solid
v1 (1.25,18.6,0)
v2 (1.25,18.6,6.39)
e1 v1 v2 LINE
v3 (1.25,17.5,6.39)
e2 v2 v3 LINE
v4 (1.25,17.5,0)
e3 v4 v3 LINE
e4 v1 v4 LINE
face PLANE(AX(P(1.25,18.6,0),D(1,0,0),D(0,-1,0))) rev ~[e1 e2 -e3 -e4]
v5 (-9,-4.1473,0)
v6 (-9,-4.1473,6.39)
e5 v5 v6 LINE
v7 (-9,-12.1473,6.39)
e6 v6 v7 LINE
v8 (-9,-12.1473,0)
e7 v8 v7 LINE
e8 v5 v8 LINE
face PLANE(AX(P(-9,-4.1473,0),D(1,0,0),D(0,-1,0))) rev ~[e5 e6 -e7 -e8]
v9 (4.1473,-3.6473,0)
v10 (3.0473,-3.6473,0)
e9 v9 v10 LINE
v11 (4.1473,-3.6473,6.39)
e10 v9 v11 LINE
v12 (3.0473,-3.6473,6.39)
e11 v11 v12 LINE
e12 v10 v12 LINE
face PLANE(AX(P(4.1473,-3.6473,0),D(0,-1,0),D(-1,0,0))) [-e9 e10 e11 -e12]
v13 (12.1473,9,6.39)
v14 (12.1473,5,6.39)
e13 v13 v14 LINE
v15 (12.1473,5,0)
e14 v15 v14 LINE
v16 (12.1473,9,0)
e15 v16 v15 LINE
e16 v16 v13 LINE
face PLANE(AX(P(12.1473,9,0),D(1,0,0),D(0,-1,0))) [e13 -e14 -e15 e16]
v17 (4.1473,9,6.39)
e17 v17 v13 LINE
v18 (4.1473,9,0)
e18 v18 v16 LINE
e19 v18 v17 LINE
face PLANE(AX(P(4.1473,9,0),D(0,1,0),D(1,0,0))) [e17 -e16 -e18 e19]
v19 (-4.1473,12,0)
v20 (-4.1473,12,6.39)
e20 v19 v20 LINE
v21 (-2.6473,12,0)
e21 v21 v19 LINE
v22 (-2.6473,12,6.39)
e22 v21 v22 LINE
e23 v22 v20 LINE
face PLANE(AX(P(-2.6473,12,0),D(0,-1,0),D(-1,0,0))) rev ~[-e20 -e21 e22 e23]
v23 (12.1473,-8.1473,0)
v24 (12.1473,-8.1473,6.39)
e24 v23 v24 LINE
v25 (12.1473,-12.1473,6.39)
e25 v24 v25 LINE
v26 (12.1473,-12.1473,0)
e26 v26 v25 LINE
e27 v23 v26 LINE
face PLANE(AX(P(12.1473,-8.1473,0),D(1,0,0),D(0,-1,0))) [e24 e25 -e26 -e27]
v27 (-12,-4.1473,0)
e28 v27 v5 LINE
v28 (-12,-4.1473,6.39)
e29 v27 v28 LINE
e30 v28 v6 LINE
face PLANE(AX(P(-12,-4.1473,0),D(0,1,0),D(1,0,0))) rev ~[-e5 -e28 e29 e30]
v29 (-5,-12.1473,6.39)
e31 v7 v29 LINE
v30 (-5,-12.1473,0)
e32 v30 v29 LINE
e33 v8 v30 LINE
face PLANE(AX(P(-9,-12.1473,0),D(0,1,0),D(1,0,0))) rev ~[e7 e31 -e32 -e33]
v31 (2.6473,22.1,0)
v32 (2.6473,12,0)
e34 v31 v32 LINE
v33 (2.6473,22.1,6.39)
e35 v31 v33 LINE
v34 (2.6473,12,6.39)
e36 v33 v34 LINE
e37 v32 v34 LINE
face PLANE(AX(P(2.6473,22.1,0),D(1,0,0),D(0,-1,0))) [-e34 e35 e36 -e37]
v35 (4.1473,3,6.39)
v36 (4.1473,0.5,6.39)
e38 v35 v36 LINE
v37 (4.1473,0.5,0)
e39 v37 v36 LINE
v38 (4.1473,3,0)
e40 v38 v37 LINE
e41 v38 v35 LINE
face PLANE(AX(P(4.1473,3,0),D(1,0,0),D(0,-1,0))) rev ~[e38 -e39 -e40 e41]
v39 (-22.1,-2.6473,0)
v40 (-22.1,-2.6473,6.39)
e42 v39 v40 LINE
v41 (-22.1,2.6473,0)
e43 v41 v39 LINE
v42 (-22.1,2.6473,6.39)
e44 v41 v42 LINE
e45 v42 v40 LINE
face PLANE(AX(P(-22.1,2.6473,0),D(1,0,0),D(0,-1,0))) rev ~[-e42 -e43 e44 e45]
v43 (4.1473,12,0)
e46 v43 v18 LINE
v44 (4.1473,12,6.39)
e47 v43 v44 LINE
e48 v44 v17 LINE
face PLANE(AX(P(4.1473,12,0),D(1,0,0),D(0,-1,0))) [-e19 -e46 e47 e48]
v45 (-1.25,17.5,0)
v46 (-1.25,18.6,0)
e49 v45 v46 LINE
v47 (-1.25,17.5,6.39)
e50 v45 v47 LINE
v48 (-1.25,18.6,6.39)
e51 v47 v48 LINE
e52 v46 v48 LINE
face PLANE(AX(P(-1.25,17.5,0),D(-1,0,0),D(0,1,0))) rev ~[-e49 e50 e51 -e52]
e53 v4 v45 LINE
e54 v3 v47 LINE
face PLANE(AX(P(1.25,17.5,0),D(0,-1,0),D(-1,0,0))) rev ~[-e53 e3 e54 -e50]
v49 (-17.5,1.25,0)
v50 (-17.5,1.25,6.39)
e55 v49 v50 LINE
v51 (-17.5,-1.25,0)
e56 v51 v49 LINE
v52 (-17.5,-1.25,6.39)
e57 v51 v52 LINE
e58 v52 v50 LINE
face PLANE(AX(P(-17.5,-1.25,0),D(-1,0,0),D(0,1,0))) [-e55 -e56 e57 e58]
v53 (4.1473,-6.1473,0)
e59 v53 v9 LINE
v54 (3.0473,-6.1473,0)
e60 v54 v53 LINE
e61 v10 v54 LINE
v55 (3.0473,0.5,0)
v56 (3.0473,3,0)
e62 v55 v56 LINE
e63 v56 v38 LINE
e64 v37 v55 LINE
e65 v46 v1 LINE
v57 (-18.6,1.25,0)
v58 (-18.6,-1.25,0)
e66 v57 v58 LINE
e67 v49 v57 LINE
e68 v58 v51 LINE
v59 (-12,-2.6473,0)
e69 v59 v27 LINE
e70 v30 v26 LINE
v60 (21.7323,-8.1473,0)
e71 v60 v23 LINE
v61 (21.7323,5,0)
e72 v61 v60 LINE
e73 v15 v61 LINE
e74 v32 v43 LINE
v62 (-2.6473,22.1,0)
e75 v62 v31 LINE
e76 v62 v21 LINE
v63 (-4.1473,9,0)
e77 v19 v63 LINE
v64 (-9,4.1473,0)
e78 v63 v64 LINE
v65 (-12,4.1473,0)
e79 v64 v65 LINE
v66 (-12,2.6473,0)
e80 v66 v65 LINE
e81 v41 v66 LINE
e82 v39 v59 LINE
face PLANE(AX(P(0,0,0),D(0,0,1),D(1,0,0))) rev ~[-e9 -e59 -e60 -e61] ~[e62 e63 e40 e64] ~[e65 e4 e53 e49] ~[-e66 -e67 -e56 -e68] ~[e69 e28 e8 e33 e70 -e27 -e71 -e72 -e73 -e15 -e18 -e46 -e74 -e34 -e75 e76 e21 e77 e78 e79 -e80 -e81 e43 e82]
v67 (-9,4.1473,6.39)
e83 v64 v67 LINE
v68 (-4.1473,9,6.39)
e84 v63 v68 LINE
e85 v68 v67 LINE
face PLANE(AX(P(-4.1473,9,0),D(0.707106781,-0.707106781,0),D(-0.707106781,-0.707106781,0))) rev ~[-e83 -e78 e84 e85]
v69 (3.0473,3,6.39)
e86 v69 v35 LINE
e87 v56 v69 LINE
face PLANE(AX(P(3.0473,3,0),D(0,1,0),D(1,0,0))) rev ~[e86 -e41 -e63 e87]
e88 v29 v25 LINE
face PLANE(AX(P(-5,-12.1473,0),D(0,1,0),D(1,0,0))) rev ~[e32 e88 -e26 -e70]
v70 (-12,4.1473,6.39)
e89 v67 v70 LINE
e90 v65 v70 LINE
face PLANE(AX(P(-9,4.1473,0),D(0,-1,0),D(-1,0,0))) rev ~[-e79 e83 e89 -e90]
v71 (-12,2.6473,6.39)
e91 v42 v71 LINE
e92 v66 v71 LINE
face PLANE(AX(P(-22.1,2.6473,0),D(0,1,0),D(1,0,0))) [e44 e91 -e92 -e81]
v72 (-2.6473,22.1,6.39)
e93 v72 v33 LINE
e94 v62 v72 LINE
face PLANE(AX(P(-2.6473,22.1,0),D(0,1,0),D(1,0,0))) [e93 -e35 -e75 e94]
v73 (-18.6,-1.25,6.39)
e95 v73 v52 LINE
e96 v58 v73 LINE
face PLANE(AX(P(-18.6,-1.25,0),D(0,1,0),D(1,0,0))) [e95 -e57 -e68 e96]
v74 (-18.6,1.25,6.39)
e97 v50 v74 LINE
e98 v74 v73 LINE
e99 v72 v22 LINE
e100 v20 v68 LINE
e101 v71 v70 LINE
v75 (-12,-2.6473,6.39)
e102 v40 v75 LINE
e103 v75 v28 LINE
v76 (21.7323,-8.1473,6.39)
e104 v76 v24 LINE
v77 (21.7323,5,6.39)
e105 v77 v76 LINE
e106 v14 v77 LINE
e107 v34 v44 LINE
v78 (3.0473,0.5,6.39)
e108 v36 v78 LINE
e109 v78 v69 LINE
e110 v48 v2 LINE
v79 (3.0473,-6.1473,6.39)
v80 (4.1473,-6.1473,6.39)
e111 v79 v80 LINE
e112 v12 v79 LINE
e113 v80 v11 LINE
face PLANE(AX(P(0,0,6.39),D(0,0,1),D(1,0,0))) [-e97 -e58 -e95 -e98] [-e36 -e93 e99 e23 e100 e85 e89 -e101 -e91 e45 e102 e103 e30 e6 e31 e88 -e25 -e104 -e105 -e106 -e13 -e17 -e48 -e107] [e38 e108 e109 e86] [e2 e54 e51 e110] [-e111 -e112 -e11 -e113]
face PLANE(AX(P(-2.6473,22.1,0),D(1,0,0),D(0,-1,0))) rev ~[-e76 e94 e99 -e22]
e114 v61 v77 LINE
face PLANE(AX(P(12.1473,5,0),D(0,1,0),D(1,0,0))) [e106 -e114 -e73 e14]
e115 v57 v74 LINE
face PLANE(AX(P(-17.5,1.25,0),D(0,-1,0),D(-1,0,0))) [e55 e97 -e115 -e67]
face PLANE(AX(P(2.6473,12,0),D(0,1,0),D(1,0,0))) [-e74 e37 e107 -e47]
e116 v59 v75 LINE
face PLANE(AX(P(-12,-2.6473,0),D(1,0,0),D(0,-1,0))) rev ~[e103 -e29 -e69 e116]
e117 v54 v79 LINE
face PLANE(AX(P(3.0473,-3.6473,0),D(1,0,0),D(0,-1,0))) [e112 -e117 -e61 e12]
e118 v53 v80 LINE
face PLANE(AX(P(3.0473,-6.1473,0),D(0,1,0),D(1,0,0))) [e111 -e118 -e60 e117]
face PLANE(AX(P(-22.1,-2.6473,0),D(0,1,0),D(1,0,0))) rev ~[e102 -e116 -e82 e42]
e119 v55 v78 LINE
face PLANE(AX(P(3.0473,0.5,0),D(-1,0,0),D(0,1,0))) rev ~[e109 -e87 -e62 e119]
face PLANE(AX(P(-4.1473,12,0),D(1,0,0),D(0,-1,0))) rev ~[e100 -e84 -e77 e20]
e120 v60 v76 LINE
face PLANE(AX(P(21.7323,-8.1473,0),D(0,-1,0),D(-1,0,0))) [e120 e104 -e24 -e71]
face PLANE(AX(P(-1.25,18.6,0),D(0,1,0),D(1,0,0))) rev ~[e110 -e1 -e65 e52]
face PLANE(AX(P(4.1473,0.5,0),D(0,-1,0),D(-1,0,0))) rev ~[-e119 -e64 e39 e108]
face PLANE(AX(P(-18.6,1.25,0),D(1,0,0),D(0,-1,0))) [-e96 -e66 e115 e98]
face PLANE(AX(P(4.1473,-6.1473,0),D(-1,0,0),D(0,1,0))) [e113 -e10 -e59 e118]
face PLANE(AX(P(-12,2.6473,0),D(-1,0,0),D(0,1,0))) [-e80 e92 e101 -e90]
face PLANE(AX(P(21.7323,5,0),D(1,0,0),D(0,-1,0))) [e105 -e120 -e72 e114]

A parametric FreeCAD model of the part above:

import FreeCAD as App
import Part
import Sketcher
Q = App.Units.Quantity


def add_polygon(sketch, points):
    """Adds a closed chain of lines whose ends are joined by coincident constraints."""
    first, n = sketch.GeometryCount, len(points)
    for a, b in zip(points, points[1:] + points[:1]):
        sketch.addGeometry(Part.LineSegment(App.Vector(*a, 0), App.Vector(*b, 0)), False)
    for i in range(n):
        sketch.addConstraint(Sketcher.Constraint("Coincident", first + i, 2, first + (i + 1) % n, 1))

doc = App.newDocument("Part")
params = doc.addObject("Spreadsheet::Sheet", "Params")
for row, (alias, value) in enumerate([
    ("sketch1_width", "3 mm"),
    ("sketch1_width2", "8 mm"),
    ("sketch1_width3", "1.5 mm"),
    ("sketch1_width4", "10.1 mm"),
    ("sketch1_width5", "1.1 mm"),
    ("pad1_length", "6.39 mm"),
], start=1):
    params.set(f"A{row}", alias)
    params.set(f"B{row}", "=" + value)
    params.setAlias(f"B{row}", alias)

body = doc.addObject("PartDesign::Body", "Body")

# Sketch on XY plane
sketch1 = body.newObject("Sketcher::SketchObject", "Sketch")
sketch1.AttachmentSupport = (doc.getObject("XY_Plane"), [""])
sketch1.MapMode = "FlatFace"
add_polygon(sketch1, [(2.6, 22.1), (-2.6, 22.1), (-2.6, 12), (-4.1, 12), (-4.1, 9), (-9, 4.1), (-12, 4.1), (-12, 2.6), (-22.1, 2.6), (-22.1, -2.6), (-12, -2.6), (-12, -4.1), (-9, -4.1), (-9, -12.1), (12.1, -12.1), (12.1, -8.1), (21.7, -8.1), (21.7, 5), (12.1, 5), (12.1, 9), (4.1, 9), (4.1, 12), (2.6, 12)])  # lines 0-22
add_polygon(sketch1, [(-18.6, -1.2), (-18.6, 1.2), (-17.5, 1.2), (-17.5, -1.2)])  # lines 23-26
add_polygon(sketch1, [(4.1, -6.1), (3, -6.1), (3, -3.6), (4.1, -3.6)])  # lines 27-30
add_polygon(sketch1, [(3, 0.5), (3, 3), (4.1, 3), (4.1, 0.5)])  # lines 31-34
add_polygon(sketch1, [(-1.2, 17.5), (-1.2, 18.6), (1.2, 18.6), (1.2, 17.5)])  # lines 35-38
sketch1.addConstraint([
    Sketcher.Constraint("Horizontal", 0),
    Sketcher.Constraint("Vertical", 1),
    Sketcher.Constraint("Horizontal", 2),
    Sketcher.Constraint("Vertical", 3),
    Sketcher.Constraint("Horizontal", 5),
    Sketcher.Constraint("Vertical", 6),
    Sketcher.Constraint("Horizontal", 7),
    Sketcher.Constraint("Vertical", 8),
    Sketcher.Constraint("Horizontal", 9),
    Sketcher.Constraint("Vertical", 10),
    Sketcher.Constraint("Horizontal", 11),
    Sketcher.Constraint("Vertical", 12),
    Sketcher.Constraint("Horizontal", 13),
    Sketcher.Constraint("Vertical", 14),
    Sketcher.Constraint("Horizontal", 15),
    Sketcher.Constraint("Vertical", 16),
    Sketcher.Constraint("Horizontal", 17),
    Sketcher.Constraint("Vertical", 18),
    Sketcher.Constraint("Horizontal", 19),
    Sketcher.Constraint("Vertical", 20),
    Sketcher.Constraint("Horizontal", 21),
    Sketcher.Constraint("Vertical", 22),
    Sketcher.Constraint("Vertical", 23),
    Sketcher.Constraint("Horizontal", 24),
    Sketcher.Constraint("Vertical", 25),
    Sketcher.Constraint("Horizontal", 26),
    Sketcher.Constraint("Horizontal", 27),
    Sketcher.Constraint("Vertical", 28),
    Sketcher.Constraint("Horizontal", 29),
    Sketcher.Constraint("Vertical", 30),
    Sketcher.Constraint("Vertical", 31),
    Sketcher.Constraint("Horizontal", 32),
    Sketcher.Constraint("Vertical", 33),
    Sketcher.Constraint("Horizontal", 34),
    Sketcher.Constraint("Vertical", 35),
    Sketcher.Constraint("Horizontal", 36),
    Sketcher.Constraint("Vertical", 37),
    Sketcher.Constraint("Horizontal", 38),
    Sketcher.Constraint("Symmetric", 3, 2, 19, 2, -2),
    Sketcher.Constraint("Symmetric", 1, 2, 21, 2, -2),
    Sketcher.Constraint("Symmetric", 6, 2, 9, 2, -1),
    Sketcher.Constraint("Symmetric", 4, 2, 11, 2, -1),
    Sketcher.Constraint("Vertical", 14, 2, 17, 2),
    Sketcher.Constraint("Vertical", 20, 2, 29, 2),
    Sketcher.Constraint("Vertical", 28, 2, 31, 2),
    Sketcher.Constraint("Vertical", 30, 2, 32, 2),
    Sketcher.Constraint("Equal", 26, 27),
    Sketcher.Constraint("Equal", 9, 1),
    Sketcher.Constraint("Equal", 11, 3),
    Sketcher.Constraint("Equal", 21, 6),
    Sketcher.Constraint("Equal", 0, 8),
    Sketcher.Constraint("Equal", 19, 12),
    Sketcher.Constraint("Equal", 14, 18),
    Sketcher.Constraint("Equal", 38, 23),
    Sketcher.Constraint("Equal", 25, 28),
    Sketcher.Constraint("Equal", 30, 31),
    Sketcher.Constraint("Equal", 34, 35),
    Sketcher.Constraint("DistanceX", 5, 2, 5, 1, Q("3 mm")),
    Sketcher.Constraint("DistanceX", 19, 2, 19, 1, Q("8 mm")),
    Sketcher.Constraint("DistanceX", 2, 2, 2, 1, Q("1.5 mm")),
    Sketcher.Constraint("DistanceX", 7, 2, 7, 1, Q("10.1 mm")),
    Sketcher.Constraint("DistanceX", 24, 1, 24, 2, Q("1.1 mm")),
    Sketcher.Constraint("DistanceX", 36, 1, 36, 2, Q("2.5 mm")),
    Sketcher.Constraint("DistanceY", -1, 1, 1, 2, Q("12 mm")),
    Sketcher.Constraint("DistanceX", 5, 2, -1, 1, Q("12 mm")),
    Sketcher.Constraint("DistanceY", -1, 1, 31, 2, Q("3 mm")),
    Sketcher.Constraint("DistanceY", 14, 2, 27, 2, Q("2 mm")),
    Sketcher.Constraint("DistanceY", 27, 2, 11, 2, Q("2 mm")),
    Sketcher.Constraint("DistanceX", 24, 2, 6, 2, Q("5.5 mm")),
    Sketcher.Constraint("DistanceY", 21, 2, 37, 2, Q("5.5 mm")),
    Sketcher.Constraint("DistanceX", 15, 1, 15, 2, Q("9.585 mm")),
    Sketcher.Constraint("DistanceX", 0, 2, 0, 1, Q("5.2946 mm")),
    Sketcher.Constraint("DistanceY", -1, 1, 23, 2, Q("1.25 mm")),
    Sketcher.Constraint("DistanceX", 35, 2, -1, 1, Q("1.25 mm")),
])
sketch1.setExpression("Constraints[96]", "Params.sketch1_width")
sketch1.setExpression("Constraints[97]", "Params.sketch1_width2")
sketch1.setExpression("Constraints[98]", "Params.sketch1_width3")
sketch1.setExpression("Constraints[99]", "Params.sketch1_width4")
sketch1.setExpression("Constraints[100]", "Params.sketch1_width5")
pad1 = body.newObject("PartDesign::Pad", "Pad")
pad1.Profile = sketch1
pad1.setExpression("Length", "Params.pad1_length")

doc.recompute()
